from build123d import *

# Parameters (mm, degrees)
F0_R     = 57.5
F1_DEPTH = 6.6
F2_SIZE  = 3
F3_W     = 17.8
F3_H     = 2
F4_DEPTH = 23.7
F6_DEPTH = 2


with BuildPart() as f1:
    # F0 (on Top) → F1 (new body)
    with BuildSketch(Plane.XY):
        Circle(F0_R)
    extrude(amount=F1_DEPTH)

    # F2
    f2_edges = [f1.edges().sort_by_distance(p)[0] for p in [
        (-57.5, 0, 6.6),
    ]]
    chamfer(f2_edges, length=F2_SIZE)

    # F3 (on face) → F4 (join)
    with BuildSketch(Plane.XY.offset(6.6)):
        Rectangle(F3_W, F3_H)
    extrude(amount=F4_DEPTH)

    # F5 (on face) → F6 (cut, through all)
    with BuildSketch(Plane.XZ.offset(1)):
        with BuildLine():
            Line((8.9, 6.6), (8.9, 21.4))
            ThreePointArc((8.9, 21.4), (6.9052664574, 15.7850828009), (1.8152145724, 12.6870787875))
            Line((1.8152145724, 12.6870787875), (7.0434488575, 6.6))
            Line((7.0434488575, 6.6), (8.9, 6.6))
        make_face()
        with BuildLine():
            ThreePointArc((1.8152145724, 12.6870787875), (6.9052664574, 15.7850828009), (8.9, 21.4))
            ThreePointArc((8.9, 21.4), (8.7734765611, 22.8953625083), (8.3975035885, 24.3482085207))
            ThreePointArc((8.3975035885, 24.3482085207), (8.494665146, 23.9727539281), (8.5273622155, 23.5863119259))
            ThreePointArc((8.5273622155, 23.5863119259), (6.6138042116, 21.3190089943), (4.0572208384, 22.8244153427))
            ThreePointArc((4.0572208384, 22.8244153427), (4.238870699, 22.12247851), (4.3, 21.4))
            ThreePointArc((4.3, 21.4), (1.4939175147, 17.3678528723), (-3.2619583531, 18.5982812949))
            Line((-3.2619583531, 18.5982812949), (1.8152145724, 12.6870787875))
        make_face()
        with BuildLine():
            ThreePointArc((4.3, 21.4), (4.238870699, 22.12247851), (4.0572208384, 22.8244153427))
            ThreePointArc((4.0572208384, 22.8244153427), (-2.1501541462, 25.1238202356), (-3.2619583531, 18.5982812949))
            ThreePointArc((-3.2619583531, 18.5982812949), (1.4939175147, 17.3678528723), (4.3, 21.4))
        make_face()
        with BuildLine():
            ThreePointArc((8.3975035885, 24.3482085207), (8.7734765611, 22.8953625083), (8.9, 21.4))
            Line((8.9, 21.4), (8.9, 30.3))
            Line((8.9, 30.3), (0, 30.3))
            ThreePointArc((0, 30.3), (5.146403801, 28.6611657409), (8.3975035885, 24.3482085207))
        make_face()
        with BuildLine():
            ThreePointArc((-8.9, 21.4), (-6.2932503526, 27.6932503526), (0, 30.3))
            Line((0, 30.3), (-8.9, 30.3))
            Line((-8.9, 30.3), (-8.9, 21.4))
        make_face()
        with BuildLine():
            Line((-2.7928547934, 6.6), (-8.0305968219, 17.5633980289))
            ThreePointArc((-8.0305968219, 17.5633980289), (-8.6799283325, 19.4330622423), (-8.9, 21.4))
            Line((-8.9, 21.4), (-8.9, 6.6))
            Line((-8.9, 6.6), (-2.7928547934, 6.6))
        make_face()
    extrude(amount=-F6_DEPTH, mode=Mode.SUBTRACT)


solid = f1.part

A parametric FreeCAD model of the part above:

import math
import FreeCAD as App
import Part
import Sketcher

V = App.Vector
Q = App.Units.Quantity


def edges_at(feature, points):
    """Names of the edges that pass closest to the given points."""
    edges = feature.Shape.Edges
    near = lambda p: min(range(len(edges)), key=lambda i: edges[i].distToShape(Part.Vertex(*p))[0])
    return sorted({f"Edge{near(p) + 1}" for p in points})


def add_polygon(sketch, points):
    """Adds a closed chain of lines whose ends are joined by coincident constraints."""
    first, n = sketch.GeometryCount, len(points)
    for a, b in zip(points, points[1:] + points[:1]):
        sketch.addGeometry(Part.LineSegment(App.Vector(*a, 0), App.Vector(*b, 0)), False)
    for i in range(n):
        sketch.addConstraint(Sketcher.Constraint("Coincident", first + i, 2, first + (i + 1) % n, 1))

doc = App.newDocument("Part")
body = doc.addObject("PartDesign::Body", "Body")

# Sketch on XY plane
sketch1 = doc.addObject("Sketcher::SketchObject", "Sketch")
body.addObject(sketch1)
sketch1.AttachmentSupport = (doc.XY_Plane, [""])
sketch1.MapMode = "FlatFace"
sketch1.addGeometry(Part.Circle(V(0, 0, 0), V(0, 0, 1), 58), False)
sketch1.addConstraint(Sketcher.Constraint("Coincident", 0, 3, -1, 1))
sketch1.addConstraint(Sketcher.Constraint("Diameter", 0, Q("115 mm")))
pad1 = doc.addObject("PartDesign::Pad", "Pad")
body.addObject(pad1)
pad1.Profile = sketch1
pad1.Length = 6.6
doc.recompute()

chamfer = doc.addObject("PartDesign::Chamfer", "Chamfer")
body.addObject(chamfer)
chamfer.Base = (pad1, edges_at(pad1, [(-57.5, 0, 6.6)]))
chamfer.Size = 3

# Sketch on XY plane
sketch2 = doc.addObject("Sketcher::SketchObject", "Sketch001")
body.addObject(sketch2)
sketch2.AttachmentSupport = (doc.XY_Plane, [""])
sketch2.MapMode = "FlatFace"
sketch2.AttachmentOffset = App.Placement(V(0, 0, 6.6), App.Rotation())
add_polygon(sketch2, [(-8.9, 1), (-8.9, -1), (8.9, -1), (8.9, 1)])  # lines 0-3
sketch2.addConstraint(Sketcher.Constraint("Vertical", 0))
sketch2.addConstraint(Sketcher.Constraint("Horizontal", 1))
sketch2.addConstraint(Sketcher.Constraint("Vertical", 2))
sketch2.addConstraint(Sketcher.Constraint("Horizontal", 3))
sketch2.addConstraint(Sketcher.Constraint("Symmetric", 0, 2, 2, 2, -1, 1))
sketch2.addConstraint(Sketcher.Constraint("DistanceY", 0, 2, 0, 1, Q("2 mm")))
sketch2.addConstraint(Sketcher.Constraint("DistanceX", 1, 1, 1, 2, Q("17.8 mm")))
pad2 = doc.addObject("PartDesign::Pad", "Pad001")
body.addObject(pad2)
pad2.Profile = sketch2
pad2.Length = 23.7

# Sketch on XZ plane
sketch3 = doc.addObject("Sketcher::SketchObject", "Sketch002")
body.addObject(sketch3)
sketch3.AttachmentSupport = (doc.XZ_Plane, [""])
sketch3.MapMode = "FlatFace"
sketch3.AttachmentOffset = App.Placement(V(0, 0, 1), App.Rotation())
sketch3.addGeometry(Part.LineSegment(V(8.9, 6.6, 0), V(8.9, 30.3, 0)), False)
sketch3.addGeometry(Part.LineSegment(V(8.9, 30.3, 0), V(0, 30.3, 0)), False)
sketch3.addGeometry(Part.ArcOfCircle(Part.Circle(V(0, 21.4, 0), V(0, 0, 1), 8.9), math.radians(19), math.radians(90)), False)
sketch3.addGeometry(Part.ArcOfCircle(Part.Circle(V(6.2, 23.6, 0), V(0, 0, 1), 2.3), math.radians(0), math.radians(19.35)), False)
sketch3.addGeometry(Part.ArcOfCircle(Part.Circle(V(6.2, 23.6, 0), V(0, 0, 1), 2.3), math.radians(-161), math.radians(0)), False)
sketch3.addGeometry(Part.ArcOfCircle(Part.Circle(V(0, 21.4, 0), V(0, 0, 1), 4.3), math.radians(19), math.radians(221)), False)
sketch3.addGeometry(Part.LineSegment(V(-3.3, 18.6, 0), V(1.8, 12.7, 0)), False)
sketch3.addGeometry(Part.LineSegment(V(1.8, 12.7, 0), V(7, 6.6, 0)), False)
sketch3.addGeometry(Part.LineSegment(V(7, 6.6, 0), V(8.9, 6.6, 0)), False)
sketch3.addGeometry(Part.ArcOfCircle(Part.Circle(V(0, 21.4, 0), V(0, 0, 1), 8.9), math.radians(90), math.radians(180)), False)
sketch3.addGeometry(Part.LineSegment(V(0, 30.3, 0), V(-8.9, 30.3, 0)), False)
sketch3.addGeometry(Part.LineSegment(V(-8.9, 30.3, 0), V(-8.9, 21.4, 0)), False)
sketch3.addGeometry(Part.LineSegment(V(-2.8, 6.6, 0), V(-8, 17.6, 0)), False)
sketch3.addGeometry(Part.ArcOfCircle(Part.Circle(V(0, 21.4, 0), V(0, 0, 1), 8.9), math.radians(180), math.radians(206)), False)
sketch3.addGeometry(Part.LineSegment(V(-8.9, 21.4, 0), V(-8.9, 6.6, 0)), False)
sketch3.addGeometry(Part.LineSegment(V(-8.9, 6.6, 0), V(-2.8, 6.6, 0)), False)
sketch3.addConstraint(Sketcher.Constraint("Coincident", 0, 2, 1, 1))
sketch3.addConstraint(Sketcher.Constraint("Tangent", 1, 2, 2, 2))
sketch3.addConstraint(Sketcher.Constraint("Tangent", 2, 1, 3, 2))
sketch3.addConstraint(Sketcher.Constraint("Tangent", 3, 1, 4, 2))
sketch3.addConstraint(Sketcher.Constraint("Tangent", 4, 1, 5, 1))
sketch3.addConstraint(Sketcher.Constraint("Tangent", 5, 2, 6, 1))
sketch3.addConstraint(Sketcher.Constraint("Coincident", 6, 2, 7, 1))
sketch3.addConstraint(Sketcher.Constraint("Coincident", 7, 2, 8, 1))
sketch3.addConstraint(Sketcher.Constraint("Coincident", 8, 2, 0, 1))
sketch3.addConstraint(Sketcher.Constraint("Tangent", 9, 1, 10, 1))
sketch3.addConstraint(Sketcher.Constraint("Coincident", 10, 2, 11, 1))
sketch3.addConstraint(Sketcher.Constraint("Tangent", 11, 2, 9, 2))
sketch3.addConstraint(Sketcher.Constraint("Tangent", 12, 2, 13, 2))
sketch3.addConstraint(Sketcher.Constraint("Tangent", 13, 1, 14, 1))
sketch3.addConstraint(Sketcher.Constraint("Coincident", 14, 2, 15, 1))
sketch3.addConstraint(Sketcher.Constraint("Coincident", 15, 2, 12, 1))
sketch3.addConstraint(Sketcher.Constraint("Vertical", 0))
sketch3.addConstraint(Sketcher.Constraint("Horizontal", 1))
sketch3.addConstraint(Sketcher.Constraint("Horizontal", 8))
sketch3.addConstraint(Sketcher.Constraint("Horizontal", 10))
sketch3.addConstraint(Sketcher.Constraint("Vertical", 11))
sketch3.addConstraint(Sketcher.Constraint("Vertical", 14))
sketch3.addConstraint(Sketcher.Constraint("Horizontal", 15))
sketch3.addConstraint(Sketcher.Constraint("Coincident", 5, 3, 2, 3))
sketch3.addConstraint(Sketcher.Constraint("Coincident", 9, 3, 2, 3))
sketch3.addConstraint(Sketcher.Constraint("Coincident", 13, 3, 2, 3))
sketch3.addConstraint(Sketcher.Constraint("Equal", 3, 4))
sketch3.addConstraint(Sketcher.Constraint("Equal", 2, 9))
sketch3.addConstraint(Sketcher.Constraint("Equal", 9, 13))
sketch3.addConstraint(Sketcher.Constraint("Symmetric", 8, 2, 14, 2, -2))
sketch3.addConstraint(Sketcher.Constraint("PointOnObject", 2, 3, -2))
sketch3.addConstraint(Sketcher.Constraint("Parallel", 6, 7))
sketch3.addConstraint(Sketcher.Constraint("Horizontal", 4, 3, 3, 1))
sketch3.addConstraint(Sketcher.Constraint("Radius", 2, Q("8.9 mm")))
sketch3.addConstraint(Sketcher.Constraint("Radius", 3, Q("2.3 mm")))
sketch3.addConstraint(Sketcher.Constraint("DistanceY", 0, 1, 0, 2, Q("23.7 mm")))
sketch3.addConstraint(Sketcher.Constraint("DistanceY", -1, 1, 2, 3, Q("21.4 mm")))
sketch3.addConstraint(Sketcher.Constraint("DistanceX", 8, 1, 8, 2, Q("1.856551 mm")))
sketch3.addConstraint(Sketcher.Constraint("DistanceY", -1, 1, 12, 2, Q("17.563398 mm")))
sketch3.addConstraint(Sketcher.Constraint("Distance", 7, Q("8.024149 mm")))
sketch3.addConstraint(Sketcher.Constraint("DistanceY", -1, 1, 3, 3, Q("23.586312 mm")))
pocket1 = doc.addObject("PartDesign::Pocket", "Pocket")
body.addObject(pocket1)
pocket1.Profile = sketch3
pocket1.Type = "ThroughAll"

doc.recompute()
